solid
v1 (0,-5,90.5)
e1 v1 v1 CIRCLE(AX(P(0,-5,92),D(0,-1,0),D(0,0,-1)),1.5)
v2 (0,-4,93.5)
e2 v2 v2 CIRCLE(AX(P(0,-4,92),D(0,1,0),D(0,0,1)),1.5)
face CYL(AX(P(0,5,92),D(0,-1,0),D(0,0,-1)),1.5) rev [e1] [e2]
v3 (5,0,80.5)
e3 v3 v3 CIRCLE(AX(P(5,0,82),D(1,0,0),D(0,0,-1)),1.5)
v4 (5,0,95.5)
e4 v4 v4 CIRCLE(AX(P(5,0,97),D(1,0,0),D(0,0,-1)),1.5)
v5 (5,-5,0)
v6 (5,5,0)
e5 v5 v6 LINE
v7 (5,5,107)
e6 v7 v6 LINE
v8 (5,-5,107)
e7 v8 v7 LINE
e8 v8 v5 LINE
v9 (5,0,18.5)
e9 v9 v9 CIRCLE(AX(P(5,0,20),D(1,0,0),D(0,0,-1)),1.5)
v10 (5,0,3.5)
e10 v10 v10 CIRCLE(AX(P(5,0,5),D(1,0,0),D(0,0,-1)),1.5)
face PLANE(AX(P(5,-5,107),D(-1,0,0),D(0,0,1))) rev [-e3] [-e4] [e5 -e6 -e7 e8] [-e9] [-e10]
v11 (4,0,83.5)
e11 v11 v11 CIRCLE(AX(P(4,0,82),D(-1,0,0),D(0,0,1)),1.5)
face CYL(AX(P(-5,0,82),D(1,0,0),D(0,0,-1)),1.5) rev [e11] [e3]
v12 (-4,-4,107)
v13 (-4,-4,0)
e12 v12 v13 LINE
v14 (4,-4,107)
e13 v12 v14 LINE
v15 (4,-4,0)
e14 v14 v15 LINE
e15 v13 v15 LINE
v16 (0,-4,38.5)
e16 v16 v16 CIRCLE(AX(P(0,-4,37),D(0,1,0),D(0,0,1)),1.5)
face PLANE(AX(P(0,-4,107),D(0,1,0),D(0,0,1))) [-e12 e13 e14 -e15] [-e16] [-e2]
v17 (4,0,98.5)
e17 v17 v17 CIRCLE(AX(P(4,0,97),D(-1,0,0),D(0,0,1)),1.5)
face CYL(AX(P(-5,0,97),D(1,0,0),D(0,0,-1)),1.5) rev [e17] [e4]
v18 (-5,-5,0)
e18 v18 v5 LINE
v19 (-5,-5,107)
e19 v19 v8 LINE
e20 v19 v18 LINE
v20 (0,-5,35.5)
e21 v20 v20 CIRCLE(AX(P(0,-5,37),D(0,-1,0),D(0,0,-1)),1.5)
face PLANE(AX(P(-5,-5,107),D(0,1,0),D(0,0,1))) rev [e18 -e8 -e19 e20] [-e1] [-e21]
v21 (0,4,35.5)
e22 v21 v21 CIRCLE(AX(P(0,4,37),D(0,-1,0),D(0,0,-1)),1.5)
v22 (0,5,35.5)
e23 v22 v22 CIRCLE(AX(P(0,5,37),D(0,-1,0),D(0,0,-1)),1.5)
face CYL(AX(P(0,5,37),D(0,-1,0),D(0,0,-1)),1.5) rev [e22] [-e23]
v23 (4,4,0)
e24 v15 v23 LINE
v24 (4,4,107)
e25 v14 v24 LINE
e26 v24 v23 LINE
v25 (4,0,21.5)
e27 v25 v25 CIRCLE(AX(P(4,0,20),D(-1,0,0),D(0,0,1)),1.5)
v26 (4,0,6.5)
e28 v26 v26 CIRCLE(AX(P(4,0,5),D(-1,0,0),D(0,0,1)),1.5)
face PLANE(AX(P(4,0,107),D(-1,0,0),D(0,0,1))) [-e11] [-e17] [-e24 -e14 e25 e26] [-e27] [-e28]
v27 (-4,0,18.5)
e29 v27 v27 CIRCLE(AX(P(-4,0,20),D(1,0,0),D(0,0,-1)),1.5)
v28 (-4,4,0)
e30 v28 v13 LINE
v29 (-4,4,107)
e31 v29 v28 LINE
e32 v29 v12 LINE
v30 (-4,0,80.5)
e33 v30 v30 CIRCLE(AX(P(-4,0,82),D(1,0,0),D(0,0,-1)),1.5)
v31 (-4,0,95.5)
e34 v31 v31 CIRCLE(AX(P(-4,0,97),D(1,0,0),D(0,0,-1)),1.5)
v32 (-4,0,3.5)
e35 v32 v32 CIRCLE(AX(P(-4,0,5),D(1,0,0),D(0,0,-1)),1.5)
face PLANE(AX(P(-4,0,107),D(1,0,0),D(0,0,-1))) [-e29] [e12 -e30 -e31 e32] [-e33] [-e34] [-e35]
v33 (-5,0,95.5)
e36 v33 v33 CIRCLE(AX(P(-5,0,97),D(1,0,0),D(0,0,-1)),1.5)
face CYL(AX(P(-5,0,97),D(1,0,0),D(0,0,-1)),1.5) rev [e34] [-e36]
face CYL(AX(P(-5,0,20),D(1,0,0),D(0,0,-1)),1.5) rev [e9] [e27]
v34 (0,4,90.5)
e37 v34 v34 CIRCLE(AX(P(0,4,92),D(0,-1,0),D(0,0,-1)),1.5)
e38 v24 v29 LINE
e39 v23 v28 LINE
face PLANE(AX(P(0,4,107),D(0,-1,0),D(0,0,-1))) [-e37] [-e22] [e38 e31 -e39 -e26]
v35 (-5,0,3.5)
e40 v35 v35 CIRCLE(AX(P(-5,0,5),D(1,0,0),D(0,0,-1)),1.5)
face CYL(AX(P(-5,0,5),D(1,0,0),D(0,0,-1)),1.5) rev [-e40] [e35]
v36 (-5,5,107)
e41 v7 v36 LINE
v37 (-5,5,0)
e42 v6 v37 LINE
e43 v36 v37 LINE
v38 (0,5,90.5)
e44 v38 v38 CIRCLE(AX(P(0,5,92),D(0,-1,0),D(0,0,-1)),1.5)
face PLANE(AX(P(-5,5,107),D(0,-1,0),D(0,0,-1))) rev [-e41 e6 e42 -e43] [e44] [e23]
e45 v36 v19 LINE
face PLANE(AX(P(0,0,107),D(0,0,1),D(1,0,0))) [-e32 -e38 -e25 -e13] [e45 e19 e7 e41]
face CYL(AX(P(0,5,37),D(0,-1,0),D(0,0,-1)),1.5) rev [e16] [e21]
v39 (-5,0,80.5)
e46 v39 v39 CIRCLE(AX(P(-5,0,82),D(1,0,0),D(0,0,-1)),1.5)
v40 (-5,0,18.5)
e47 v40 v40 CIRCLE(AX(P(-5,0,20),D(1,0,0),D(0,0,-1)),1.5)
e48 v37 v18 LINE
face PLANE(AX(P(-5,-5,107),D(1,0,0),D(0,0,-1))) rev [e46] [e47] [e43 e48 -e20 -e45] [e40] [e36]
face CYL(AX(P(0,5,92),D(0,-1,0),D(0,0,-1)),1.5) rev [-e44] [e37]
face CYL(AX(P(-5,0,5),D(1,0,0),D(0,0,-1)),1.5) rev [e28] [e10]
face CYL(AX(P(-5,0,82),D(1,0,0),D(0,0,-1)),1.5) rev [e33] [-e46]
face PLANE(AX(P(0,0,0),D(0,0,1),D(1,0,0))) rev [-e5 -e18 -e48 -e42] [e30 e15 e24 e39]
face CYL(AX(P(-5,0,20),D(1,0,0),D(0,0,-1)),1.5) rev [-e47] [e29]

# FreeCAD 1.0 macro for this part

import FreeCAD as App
import Part
import Sketcher
Q = App.Units.Quantity


def add_polygon(sketch, points):
    """Adds a closed chain of lines whose ends are joined by coincident constraints."""
    first, n = sketch.GeometryCount, len(points)
    for a, b in zip(points, points[1:] + points[:1]):
        sketch.addGeometry(Part.LineSegment(App.Vector(*a, 0), App.Vector(*b, 0)), False)
    for i in range(n):
        sketch.addConstraint(Sketcher.Constraint("Coincident", first + i, 2, first + (i + 1) % n, 1))

doc = App.newDocument("Part")
body = doc.addObject("PartDesign::Body", "Body")

# Sketch on XY plane
sketch1 = body.newObject("Sketcher::SketchObject", "Sketch")
sketch1.AttachmentSupport = (doc.getObject("XY_Plane"), [""])
sketch1.MapMode = "FlatFace"
add_polygon(sketch1, [(-5, 5), (-5, -5), (5, -5), (5, 5)])  # lines 0-3
add_polygon(sketch1, [(4, -4), (-4, -4), (-4, 4), (4, 4)])  # lines 4-7
sketch1.addConstraint([
    Sketcher.Constraint("Vertical", 0),
    Sketcher.Constraint("Horizontal", 1),
    Sketcher.Constraint("Vertical", 2),
    Sketcher.Constraint("Horizontal", 3),
    Sketcher.Constraint("Horizontal", 4),
    Sketcher.Constraint("Vertical", 5),
    Sketcher.Constraint("Horizontal", 6),
    Sketcher.Constraint("Vertical", 7),
    Sketcher.Constraint("Symmetric", 0, 2, 2, 2, -1, 1),
    Sketcher.Constraint("Symmetric", 4, 2, 6, 2, -1, 1),
    Sketcher.Constraint("Equal", 3, 0),
    Sketcher.Constraint("Equal", 6, 5),
    Sketcher.Constraint("DistanceX", 1, 1, 1, 2, Q("10 mm")),
    Sketcher.Constraint("DistanceX", 4, 2, 4, 1, Q("8 mm")),
])
pad1 = body.newObject("PartDesign::Pad", "Pad")
pad1.Profile = sketch1
pad1.Length = 107

# Sketch on YZ plane
sketch2 = body.newObject("Sketcher::SketchObject", "Sketch001")
sketch2.AttachmentSupport = (doc.getObject("YZ_Plane"), [""])
sketch2.MapMode = "FlatFace"
sketch2.AttachmentOffset = App.Placement(App.Vector(0, 0, 5), App.Rotation())
sketch2.addGeometry([
    Part.Circle(App.Vector(0, 5, 0), App.Vector(0, 0, 1), 1.5),
    Part.Circle(App.Vector(0, 20, 0), App.Vector(0, 0, 1), 1.5),
    Part.Circle(App.Vector(0, 97, 0), App.Vector(0, 0, 1), 1.5),
    Part.Circle(App.Vector(0, 82, 0), App.Vector(0, 0, 1), 1.5),
], False)
sketch2.addConstraint([
    Sketcher.Constraint("Equal", 0, 1),
    Sketcher.Constraint("Equal", 1, 2),
    Sketcher.Constraint("Equal", 2, 3),
    Sketcher.Constraint("PointOnObject", 0, 3, -2),
    Sketcher.Constraint("PointOnObject", 1, 3, -2),
    Sketcher.Constraint("PointOnObject", 2, 3, -2),
    Sketcher.Constraint("PointOnObject", 3, 3, -2),
    Sketcher.Constraint("Diameter", 0, Q("3 mm")),
    Sketcher.Constraint("DistanceY", -1, 1, 0, 3, Q("5 mm")),
    Sketcher.Constraint("DistanceY", -1, 1, 1, 3, Q("20 mm")),
    Sketcher.Constraint("DistanceY", -1, 1, 2, 3, Q("97 mm")),
    Sketcher.Constraint("DistanceY", -1, 1, 3, 3, Q("82 mm")),
])
pocket1 = body.newObject("PartDesign::Pocket", "Pocket")
pocket1.Profile = sketch2
pocket1.Type = "ThroughAll"

# Sketch on XZ plane
sketch3 = body.newObject("Sketcher::SketchObject", "Sketch002")
sketch3.AttachmentSupport = (doc.getObject("XZ_Plane"), [""])
sketch3.MapMode = "FlatFace"
sketch3.AttachmentOffset = App.Placement(App.Vector(0, 0, 5), App.Rotation())
sketch3.addGeometry([
    Part.Circle(App.Vector(0, 92, 0), App.Vector(0, 0, 1), 1.5),
    Part.Circle(App.Vector(0, 37, 0), App.Vector(0, 0, 1), 1.5),
], False)
sketch3.addConstraint([
    Sketcher.Constraint("Equal", 0, 1),
    Sketcher.Constraint("PointOnObject", 0, 3, -2),
    Sketcher.Constraint("PointOnObject", 1, 3, -2),
    Sketcher.Constraint("Diameter", 0, Q("3 mm")),
    Sketcher.Constraint("DistanceY", -1, 1, 0, 3, Q("92 mm")),
    Sketcher.Constraint("DistanceY", -1, 1, 1, 3, Q("37 mm")),
])
pocket2 = body.newObject("PartDesign::Pocket", "Pocket001")
pocket2.Profile = sketch3
pocket2.Length = 10

doc.recompute()
